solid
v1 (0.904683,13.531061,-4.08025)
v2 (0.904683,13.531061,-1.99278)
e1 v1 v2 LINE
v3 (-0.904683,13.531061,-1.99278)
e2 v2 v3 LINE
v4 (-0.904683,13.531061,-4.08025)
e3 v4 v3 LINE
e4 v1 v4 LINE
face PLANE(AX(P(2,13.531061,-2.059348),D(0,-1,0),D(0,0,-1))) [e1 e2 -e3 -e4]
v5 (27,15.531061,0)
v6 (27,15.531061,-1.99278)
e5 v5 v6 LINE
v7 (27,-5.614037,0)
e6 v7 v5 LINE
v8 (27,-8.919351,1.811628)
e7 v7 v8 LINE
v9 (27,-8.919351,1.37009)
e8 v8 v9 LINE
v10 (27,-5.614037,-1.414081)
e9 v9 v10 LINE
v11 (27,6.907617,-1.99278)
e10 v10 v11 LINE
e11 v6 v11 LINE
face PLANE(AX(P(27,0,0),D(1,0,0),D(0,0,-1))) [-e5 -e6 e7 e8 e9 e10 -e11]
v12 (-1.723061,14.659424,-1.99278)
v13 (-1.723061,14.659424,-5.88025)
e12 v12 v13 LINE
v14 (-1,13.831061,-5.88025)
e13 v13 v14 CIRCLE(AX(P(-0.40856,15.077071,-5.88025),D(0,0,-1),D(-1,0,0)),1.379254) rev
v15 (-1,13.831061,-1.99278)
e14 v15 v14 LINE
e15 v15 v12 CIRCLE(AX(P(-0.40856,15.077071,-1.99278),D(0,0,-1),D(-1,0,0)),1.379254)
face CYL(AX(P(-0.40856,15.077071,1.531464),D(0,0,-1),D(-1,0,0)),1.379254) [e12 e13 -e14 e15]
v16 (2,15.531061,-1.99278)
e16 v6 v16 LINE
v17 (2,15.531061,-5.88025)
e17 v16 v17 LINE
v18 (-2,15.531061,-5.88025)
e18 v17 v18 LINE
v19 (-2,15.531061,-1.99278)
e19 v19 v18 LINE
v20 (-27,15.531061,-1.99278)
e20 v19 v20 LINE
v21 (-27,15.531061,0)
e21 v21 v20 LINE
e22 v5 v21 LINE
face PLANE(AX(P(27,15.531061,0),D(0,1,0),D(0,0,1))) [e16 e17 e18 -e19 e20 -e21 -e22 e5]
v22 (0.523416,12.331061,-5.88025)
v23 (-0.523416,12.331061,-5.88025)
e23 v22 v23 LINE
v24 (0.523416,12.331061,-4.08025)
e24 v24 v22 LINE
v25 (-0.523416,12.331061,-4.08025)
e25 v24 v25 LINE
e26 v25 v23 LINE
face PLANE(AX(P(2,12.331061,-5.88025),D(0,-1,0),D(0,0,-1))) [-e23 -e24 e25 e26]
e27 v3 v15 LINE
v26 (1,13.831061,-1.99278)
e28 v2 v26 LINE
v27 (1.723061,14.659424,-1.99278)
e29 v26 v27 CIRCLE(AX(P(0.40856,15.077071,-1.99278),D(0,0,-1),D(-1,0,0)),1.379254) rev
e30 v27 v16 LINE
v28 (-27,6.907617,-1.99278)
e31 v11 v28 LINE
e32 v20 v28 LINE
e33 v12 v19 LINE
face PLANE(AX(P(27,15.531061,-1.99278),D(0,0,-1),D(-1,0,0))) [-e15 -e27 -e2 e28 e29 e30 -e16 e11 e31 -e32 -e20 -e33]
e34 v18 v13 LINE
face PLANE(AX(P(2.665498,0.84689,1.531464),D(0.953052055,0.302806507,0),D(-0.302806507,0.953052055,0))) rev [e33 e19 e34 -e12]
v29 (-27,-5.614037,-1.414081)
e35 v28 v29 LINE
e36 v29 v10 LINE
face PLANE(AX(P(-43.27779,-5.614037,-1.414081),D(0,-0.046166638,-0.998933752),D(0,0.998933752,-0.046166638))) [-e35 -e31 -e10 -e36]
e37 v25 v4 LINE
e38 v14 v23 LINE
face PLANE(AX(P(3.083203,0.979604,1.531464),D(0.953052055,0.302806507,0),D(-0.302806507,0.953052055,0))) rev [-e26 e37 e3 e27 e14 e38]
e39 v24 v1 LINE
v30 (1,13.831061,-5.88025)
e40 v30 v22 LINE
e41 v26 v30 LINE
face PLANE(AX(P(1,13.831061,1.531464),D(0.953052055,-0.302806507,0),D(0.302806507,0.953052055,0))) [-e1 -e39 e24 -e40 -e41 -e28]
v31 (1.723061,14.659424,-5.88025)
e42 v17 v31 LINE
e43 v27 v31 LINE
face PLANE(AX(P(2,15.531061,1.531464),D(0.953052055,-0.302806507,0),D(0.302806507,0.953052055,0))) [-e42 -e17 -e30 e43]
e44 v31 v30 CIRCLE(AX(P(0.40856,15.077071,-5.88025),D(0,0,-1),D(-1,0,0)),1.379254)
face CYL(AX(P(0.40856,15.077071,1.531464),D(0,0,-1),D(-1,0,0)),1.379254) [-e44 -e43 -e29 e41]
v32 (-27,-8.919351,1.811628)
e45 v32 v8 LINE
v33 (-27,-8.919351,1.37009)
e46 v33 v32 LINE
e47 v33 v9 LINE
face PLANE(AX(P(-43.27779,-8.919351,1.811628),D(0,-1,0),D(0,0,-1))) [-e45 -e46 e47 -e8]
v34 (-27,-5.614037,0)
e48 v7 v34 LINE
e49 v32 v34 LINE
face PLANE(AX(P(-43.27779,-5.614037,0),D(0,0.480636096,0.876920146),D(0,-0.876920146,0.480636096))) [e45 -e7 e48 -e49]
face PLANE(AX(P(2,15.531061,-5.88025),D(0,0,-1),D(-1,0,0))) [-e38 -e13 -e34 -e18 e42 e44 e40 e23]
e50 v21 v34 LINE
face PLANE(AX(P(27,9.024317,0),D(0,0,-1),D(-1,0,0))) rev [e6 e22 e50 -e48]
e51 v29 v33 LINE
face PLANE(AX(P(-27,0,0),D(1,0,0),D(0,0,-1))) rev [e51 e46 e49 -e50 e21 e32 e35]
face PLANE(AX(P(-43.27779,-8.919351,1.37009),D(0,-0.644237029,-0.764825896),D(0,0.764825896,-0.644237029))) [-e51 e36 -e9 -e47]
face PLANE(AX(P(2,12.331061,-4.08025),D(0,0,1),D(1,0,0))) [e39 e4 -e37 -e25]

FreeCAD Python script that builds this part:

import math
import FreeCAD as App
import Part
import Sketcher

V = App.Vector
Q = App.Units.Quantity

doc = App.newDocument("Part")
body = doc.addObject("PartDesign::Body", "Body")

# Sketch on YZ plane
sketch1 = body.newObject("Sketcher::SketchObject", "Sketch")
sketch1.AttachmentSupport = (doc.getObject("YZ_Plane"), [""])
sketch1.MapMode = "FlatFace"
sketch1.addGeometry([
    Part.LineSegment(V(-5.23, -6.5, 0), V(3.4, -6.5, 0)),  # 0
    Part.LineSegment(V(3.4, -6.5, 0), V(5.93, -2.49, 0)),  # 1
    Part.LineSegment(V(5.93, -2.49, 0), V(6.91, -1.99, 0)),  # 2
    Part.LineSegment(V(6.91, -1.99, 0), V(15.53, -1.99, 0)),  # 3
    Part.LineSegment(V(15.53, -1.99, 0), V(15.53, 0, 0)),  # 4
    Part.LineSegment(V(15.53, 0, 0), V(5.53, 0, 0)),  # 5
    Part.LineSegment(V(5.53, 0, 0), V(5.53, -1.08, 0)),  # 6
    Part.LineSegment(V(5.53, -1.08, 0), V(3.74, -2.13, 0)),  # 7
    Part.LineSegment(V(3.74, -2.13, 0), V(3.32, -2.13, 0)),  # 8
    Part.LineSegment(V(3.32, -2.13, 0), V(3.32, -3.85, 0)),  # 9
    Part.LineSegment(V(3.32, -3.85, 0), V(-5.23, -3.85, 0)),  # 10
    Part.LineSegment(V(-5.23, -3.85, 0), V(-5.23, -6.5, 0)),  # 11
], False)
sketch1.addConstraint([
    Sketcher.Constraint("Coincident", 0, 2, 1, 1),
    Sketcher.Constraint("Coincident", 1, 2, 2, 1),
    Sketcher.Constraint("Coincident", 2, 2, 3, 1),
    Sketcher.Constraint("Coincident", 3, 2, 4, 1),
    Sketcher.Constraint("Coincident", 4, 2, 5, 1),
    Sketcher.Constraint("Coincident", 5, 2, 6, 1),
    Sketcher.Constraint("Coincident", 6, 2, 7, 1),
    Sketcher.Constraint("Coincident", 7, 2, 8, 1),
    Sketcher.Constraint("Coincident", 8, 2, 9, 1),
    Sketcher.Constraint("Coincident", 9, 2, 10, 1),
    Sketcher.Constraint("Coincident", 10, 2, 11, 1),
    Sketcher.Constraint("Coincident", 11, 2, 0, 1),
    Sketcher.Constraint("Horizontal", 0),
    Sketcher.Constraint("Horizontal", 3),
    Sketcher.Constraint("Vertical", 4),
    Sketcher.Constraint("Horizontal", 5),
    Sketcher.Constraint("Vertical", 6),
    Sketcher.Constraint("Horizontal", 8),
    Sketcher.Constraint("Vertical", 9),
    Sketcher.Constraint("Horizontal", 10),
    Sketcher.Constraint("Vertical", 11),
    Sketcher.Constraint("PointOnObject", 4, 2, -1),
    Sketcher.Constraint("DistanceX", 5, 2, 5, 1, Q("10 mm")),
    Sketcher.Constraint("DistanceY", 9, 2, -1, 1, Q("3.852002 mm")),
    Sketcher.Constraint("DistanceY", 4, 1, 4, 2, Q("1.99278 mm")),
    Sketcher.Constraint("DistanceY", 9, 2, 9, 1, Q("1.724942 mm")),
    Sketcher.Constraint("DistanceY", 11, 2, 11, 1, Q("2.644388 mm")),
    Sketcher.Constraint("DistanceX", 0, 2, 1, 2, Q("2.5257 mm")),
    Sketcher.Constraint("Distance", 2, Q("1.10073 mm")),
    Sketcher.Constraint("Distance", 7, Q("2.07246 mm")),
    Sketcher.Constraint("DistanceX", 0, 1, 0, 2, Q("8.635816 mm")),
    Sketcher.Constraint("DistanceX", 3, 1, 3, 2, Q("8.623444 mm")),
    Sketcher.Constraint("DistanceX", 8, 2, 8, 1, Q("0.428863 mm")),
    Sketcher.Constraint("DistanceX", 10, 2, 10, 1, Q("8.550924 mm")),
    Sketcher.Constraint("DistanceY", 6, 2, 6, 1, Q("1.075984 mm")),
    Sketcher.Constraint("DistanceX", -1, 1, 0, 2, Q("3.400941 mm")),
])
pad1 = body.newObject("PartDesign::Pad", "Pad")
pad1.Profile = sketch1
pad1.Length = 54
pad1.Midplane = True

# Sketch on XY plane
sketch2 = body.newObject("Sketcher::SketchObject", "Sketch001")
sketch2.AttachmentSupport = (doc.getObject("XY_Plane"), [""])
sketch2.MapMode = "FlatFace"
sketch2.AttachmentOffset = App.Placement(V(0, 0, -6.49639), App.Rotation())
sketch2.addGeometry([
    Part.LineSegment(V(4.5, -1.7, 0), V(4.5, -5.7, 0)),
    Part.LineSegment(V(4.5, -5.7, 0), V(-4.5, -5.7, 0)),
    Part.LineSegment(V(-4.5, -5.7, 0), V(-4.5, -1.7, 0)),
    Part.LineSegment(V(-4.5, -1.7, 0), V(4.5, -1.7, 0)),
], False)
sketch2.addConstraint([
    Sketcher.Constraint("Coincident", 0, 2, 1, 1),
    Sketcher.Constraint("Coincident", 1, 2, 2, 1),
    Sketcher.Constraint("Coincident", 2, 2, 3, 1),
    Sketcher.Constraint("Coincident", 3, 2, 0, 1),
    Sketcher.Constraint("Vertical", 0),
    Sketcher.Constraint("Horizontal", 1),
    Sketcher.Constraint("Vertical", 2),
    Sketcher.Constraint("Horizontal", 3),
    Sketcher.Constraint("DistanceX", 1, 2, 1, 1, Q("9 mm")),
    Sketcher.Constraint("DistanceY", 0, 2, 0, 1, Q("4 mm")),
    Sketcher.Constraint("DistanceX", -1, 1, 0, 2, Q("4.5 mm")),
    Sketcher.Constraint("DistanceY", 0, 2, -1, 1, Q("5.734875 mm")),
])
pocket1 = body.newObject("PartDesign::Pocket", "Pocket")
pocket1.Profile = sketch2
pocket1.Length = 4
pocket1.Reversed = True

# Sketch on XY plane
sketch3 = body.newObject("Sketcher::SketchObject", "Sketch002")
sketch3.AttachmentSupport = (doc.getObject("XY_Plane"), [""])
sketch3.MapMode = "FlatFace"
sketch3.AttachmentOffset = App.Placement(V(0, 0, -6.49639), App.Rotation())
sketch3.addGeometry([
    Part.LineSegment(V(4.5, 1.3, 0), V(4.5, -1.7, 0)),
    Part.LineSegment(V(4.5, -1.7, 0), V(-4.5, -1.7, 0)),
    Part.LineSegment(V(-4.5, -1.7, 0), V(-4.5, 1.3, 0)),
    Part.LineSegment(V(-4.5, 1.3, 0), V(4.5, 1.3, 0)),
], False)
sketch3.addConstraint([
    Sketcher.Constraint("Coincident", 0, 2, 1, 1),
    Sketcher.Constraint("Coincident", 1, 2, 2, 1),
    Sketcher.Constraint("Coincident", 2, 2, 3, 1),
    Sketcher.Constraint("Coincident", 3, 2, 0, 1),
    Sketcher.Constraint("Vertical", 0),
    Sketcher.Constraint("Horizontal", 1),
    Sketcher.Constraint("Vertical", 2),
    Sketcher.Constraint("Horizontal", 3),
    Sketcher.Constraint("DistanceX", 1, 2, 1, 1, Q("9 mm")),
    Sketcher.Constraint("DistanceX", -1, 1, 0, 2, Q("4.5 mm")),
    Sketcher.Constraint("DistanceY", 0, 2, 0, 1, Q("3.038101 mm")),
    Sketcher.Constraint("DistanceY", 0, 2, -1, 1, Q("1.734875 mm")),
])
pad2 = body.newObject("PartDesign::Pad", "Pad001")
pad2.Profile = sketch3
pad2.Length = 3
pad2.Reversed = True

# Sketch on XZ plane
sketch4 = body.newObject("Sketcher::SketchObject", "Sketch003")
sketch4.AttachmentSupport = (doc.getObject("XZ_Plane"), [""])
sketch4.MapMode = "FlatFace"
sketch4.AttachmentOffset = App.Placement(V(0, 0, 1.734875), App.Rotation())
sketch4.addGeometry(Part.Circle(V(0, -6.1, 0), V(0, 0, 1), 1.5), False)
sketch4.addConstraint([
    Sketcher.Constraint("PointOnObject", 0, 3, -2),
    Sketcher.Constraint("Diameter", 0, Q("3 mm")),
    Sketcher.Constraint("DistanceY", 0, 3, -1, 1, Q("6.102002 mm")),
])
pocket2 = body.newObject("PartDesign::Pocket", "Pocket001")
pocket2.Profile = sketch4
pocket2.Length = 9

# Sketch on YZ plane
sketch5 = body.newObject("Sketcher::SketchObject", "Sketch004")
sketch5.AttachmentSupport = (doc.getObject("YZ_Plane"), [""])
sketch5.MapMode = "FlatFace"
sketch5.addGeometry([
    Part.LineSegment(V(15.5, -5.9, 0), V(15.5, -1.9, 0)),  # 0
    Part.LineSegment(V(15.5, -1.9, 0), V(13.5, -1.9, 0)),  # 1
    Part.LineSegment(V(13.5, -1.9, 0), V(13.5, -4.1, 0)),  # 2
    Part.LineSegment(V(13.5, -4.1, 0), V(12.3, -4.1, 0)),  # 3
    Part.LineSegment(V(12.3, -4.1, 0), V(12.3, -5.9, 0)),  # 4
    Part.LineSegment(V(12.3, -5.9, 0), V(15.5, -5.9, 0)),  # 5
], False)
sketch5.addConstraint([
    Sketcher.Constraint("Coincident", 0, 2, 1, 1),
    Sketcher.Constraint("Coincident", 1, 2, 2, 1),
    Sketcher.Constraint("Coincident", 2, 2, 3, 1),
    Sketcher.Constraint("Coincident", 3, 2, 4, 1),
    Sketcher.Constraint("Coincident", 4, 2, 5, 1),
    Sketcher.Constraint("Coincident", 5, 2, 0, 1),
    Sketcher.Constraint("Vertical", 0),
    Sketcher.Constraint("Horizontal", 1),
    Sketcher.Constraint("Vertical", 2),
    Sketcher.Constraint("Horizontal", 3),
    Sketcher.Constraint("Vertical", 4),
    Sketcher.Constraint("Horizontal", 5),
    Sketcher.Constraint("DistanceX", 1, 2, 1, 1, Q("2 mm")),
    Sketcher.Constraint("DistanceY", 0, 1, 0, 2, Q("4 mm")),
    Sketcher.Constraint("DistanceX", 3, 2, 3, 1, Q("1.2 mm")),
    Sketcher.Constraint("DistanceY", 2, 2, 2, 1, Q("2.2 mm")),
    Sketcher.Constraint("DistanceX", -1, 1, 0, 2, Q("15.531061 mm")),
    Sketcher.Constraint("DistanceY", 0, 2, -1, 1, Q("1.88025 mm")),
])
pad3 = body.newObject("PartDesign::Pad", "Pad002")
pad3.Profile = sketch5
pad3.Length = 4
pad3.Midplane = True

# Sketch on XY plane
sketch6 = body.newObject("Sketcher::SketchObject", "Sketch005")
sketch6.AttachmentSupport = (doc.getObject("XY_Plane"), [""])
sketch6.MapMode = "FlatFace"
sketch6.AttachmentOffset = App.Placement(V(0, 0, -5.88025), App.Rotation())
sketch6.addGeometry([
    Part.LineSegment(V(-1, 13.8, 0), V(-0.5, 12.3, 0)),  # 0
    Part.LineSegment(V(-0.5, 12.3, 0), V(-2, 12.3, 0)),  # 1
    Part.LineSegment(V(-2, 12.3, 0), V(-2, 15.5, 0)),  # 2
    Part.LineSegment(V(-2, 15.5, 0), V(-1.7, 14.7, 0)),  # 3
    Part.ArcOfCircle(Part.Circle(V(-0.4, 15.1, 0), V(0, 0, 1), 1.4), math.radians(-162), math.radians(-115)),  # 4
    Part.ArcOfCircle(Part.Circle(V(0.4, 15.1, 0), V(0, 0, 1), 1.4), math.radians(-65), math.radians(-18)),  # 5
    Part.LineSegment(V(1.7, 14.7, 0), V(2, 15.5, 0)),  # 6
    Part.LineSegment(V(2, 15.5, 0), V(2, 12.3, 0)),  # 7
    Part.LineSegment(V(2, 12.3, 0), V(0.5, 12.3, 0)),  # 8
    Part.LineSegment(V(0.5, 12.3, 0), V(1, 13.8, 0)),  # 9
], False)
sketch6.addConstraint([
    Sketcher.Constraint("Coincident", 0, 2, 1, 1),
    Sketcher.Constraint("Coincident", 1, 2, 2, 1),
    Sketcher.Constraint("Coincident", 2, 2, 3, 1),
    Sketcher.Constraint("Tangent", 3, 2, 4, 1),
    Sketcher.Constraint("Coincident", 4, 2, 0, 1),
    Sketcher.Constraint("Tangent", 5, 2, 6, 1),
    Sketcher.Constraint("Coincident", 6, 2, 7, 1),
    Sketcher.Constraint("Coincident", 7, 2, 8, 1),
    Sketcher.Constraint("Coincident", 8, 2, 9, 1),
    Sketcher.Constraint("Coincident", 9, 2, 5, 1),
    Sketcher.Constraint("Horizontal", 1),
    Sketcher.Constraint("Vertical", 2),
    Sketcher.Constraint("Vertical", 7),
    Sketcher.Constraint("Horizontal", 8),
    Sketcher.Constraint("Equal", 4, 5),
    Sketcher.Constraint("Symmetric", 4, 3, 5, 3, -2),
    Sketcher.Constraint("Symmetric", 2, 2, 6, 2, -2),
    Sketcher.Constraint("Symmetric", 0, 2, 8, 2, -2),
    Sketcher.Constraint("Parallel", 0, 3),
    Sketcher.Constraint("Parallel", 6, 9),
    Sketcher.Constraint("DistanceY", 2, 1, 2, 2, Q("3.2 mm")),
    Sketcher.Constraint("DistanceX", 1, 2, -1, 1, Q("2 mm")),
    Sketcher.Constraint("DistanceX", 4, 2, -1, 1, Q("1 mm")),
    Sketcher.Constraint("DistanceY", 0, 2, 4, 2, Q("1.5 mm")),
    Sketcher.Constraint("Radius", 4, Q("1.379254 mm")),
    Sketcher.Constraint("DistanceX", 3, 2, 4, 3, Q("1.314501 mm")),
    Sketcher.Constraint("DistanceY", -1, 1, 4, 3, Q("15.077071 mm")),
])
pocket3 = body.newObject("PartDesign::Pocket", "Pocket002")
pocket3.Profile = sketch6
pocket3.Length = 3.887469
pocket3.Reversed = True

# Sketch on YZ plane
sketch7 = body.newObject("Sketcher::SketchObject", "Sketch006")
sketch7.AttachmentSupport = (doc.getObject("YZ_Plane"), [""])
sketch7.MapMode = "FlatFace"
sketch7.AttachmentOffset = App.Placement(V(0, 0, -27), App.Rotation())
sketch7.addGeometry([
    Part.LineSegment(V(5, -12, 0), V(-8, -12, 0)),
    Part.LineSegment(V(-8, -12, 0), V(-8, -4, 0)),
    Part.LineSegment(V(-8, -4, 0), V(5, -4, 0)),
    Part.LineSegment(V(5, -4, 0), V(5, -12, 0)),
], False)
sketch7.addConstraint([
    Sketcher.Constraint("Coincident", 0, 2, 1, 1),
    Sketcher.Constraint("Coincident", 1, 2, 2, 1),
    Sketcher.Constraint("Coincident", 2, 2, 3, 1),
    Sketcher.Constraint("Coincident", 3, 2, 0, 1),
    Sketcher.Constraint("Horizontal", 0),
    Sketcher.Constraint("Vertical", 1),
    Sketcher.Constraint("Horizontal", 2),
    Sketcher.Constraint("Vertical", 3),
    Sketcher.Constraint("DistanceX", 0, 2, 0, 1, Q("13.248031 mm")),
    Sketcher.Constraint("DistanceY", 1, 1, 1, 2, Q("8.610608 mm")),
    Sketcher.Constraint("DistanceY", 0, 2, -1, 1, Q("12.402951 mm")),
    Sketcher.Constraint("DistanceX", 0, 2, -1, 1, Q("7.997957 mm")),
])
pocket4 = body.newObject("PartDesign::Pocket", "Pocket003")
pocket4.Profile = sketch7
pocket4.Length = 54
pocket4.Reversed = True

# Sketch on YZ plane
sketch8 = body.newObject("Sketcher::SketchObject", "Sketch007")
sketch8.AttachmentSupport = (doc.getObject("YZ_Plane"), [""])
sketch8.MapMode = "FlatFace"
sketch8.AttachmentOffset = App.Placement(V(0, 0, -27), App.Rotation())
sketch8.addGeometry([
    Part.LineSegment(V(3.3, -2.1, 0), V(3.3, -3.8, 0)),  # 0
    Part.LineSegment(V(3.3, -3.8, 0), V(-5.6, -3.8, 0)),  # 1
    Part.LineSegment(V(-5.6, -3.8, 0), V(-5.6, -2.2, 0)),  # 2
    Part.LineSegment(V(-5.6, -2.2, 0), V(0.4, -2.2, 0)),  # 3
    Part.LineSegment(V(0.4, -2.2, 0), V(3.3, -2.1, 0)),  # 4
], False)
sketch8.addConstraint([
    Sketcher.Constraint("Coincident", 0, 2, 1, 1),
    Sketcher.Constraint("Coincident", 1, 2, 2, 1),
    Sketcher.Constraint("Coincident", 2, 2, 3, 1),
    Sketcher.Constraint("Coincident", 3, 2, 4, 1),
    Sketcher.Constraint("Coincident", 4, 2, 0, 1),
    Sketcher.Constraint("Vertical", 0),
    Sketcher.Constraint("Horizontal", 1),
    Sketcher.Constraint("Vertical", 2),
    Sketcher.Constraint("Horizontal", 3),
    Sketcher.Constraint("DistanceX", 3, 1, 3, 2, Q("6.005921 mm")),
    Sketcher.Constraint("DistanceY", 3, 2, 4, 2, Q("0.088101 mm")),
    Sketcher.Constraint("Distance", 4, Q("2.925492 mm")),
    Sketcher.Constraint("DistanceY", 0, 2, 0, 1, Q("1.665283 mm")),
    Sketcher.Constraint("DistanceX", -1, 1, 0, 2, Q("3.316049 mm")),
    Sketcher.Constraint("DistanceY", 2, 2, -1, 1, Q("2.215161 mm")),
])
pad4 = body.newObject("PartDesign::Pad", "Pad003")
pad4.Profile = sketch8
pad4.Length = 54

# Sketch on XY plane
sketch9 = body.newObject("Sketcher::SketchObject", "Sketch008")
sketch9.AttachmentSupport = (doc.getObject("XY_Plane"), [""])
sketch9.MapMode = "FlatFace"
sketch9.AttachmentOffset = App.Placement(V(0, 0, -2.215161), App.Rotation())
sketch9.addGeometry([
    Part.LineSegment(V(-27, 0, 0), V(-27, -6, 0)),  # 0
    Part.LineSegment(V(-27, -6, 0), V(-3, -6, 0)),  # 1
    Part.LineSegment(V(-3, -6, 0), V(-3, 0, 0)),  # 2
    Part.LineSegment(V(-3, 0, 0), V(-27, 0, 0)),  # 3
    Part.LineSegment(V(3, 0, 0), V(3, -6, 0)),  # 4
    Part.LineSegment(V(3, -6, 0), V(27, -6, 0)),  # 5
    Part.LineSegment(V(27, -6, 0), V(27, 0, 0)),  # 6
    Part.LineSegment(V(27, 0, 0), V(3, 0, 0)),  # 7
], False)
sketch9.addConstraint([
    Sketcher.Constraint("Coincident", 0, 2, 1, 1),
    Sketcher.Constraint("Coincident", 1, 2, 2, 1),
    Sketcher.Constraint("Coincident", 2, 2, 3, 1),
    Sketcher.Constraint("Coincident", 3, 2, 0, 1),
    Sketcher.Constraint("Coincident", 4, 2, 5, 1),
    Sketcher.Constraint("Coincident", 5, 2, 6, 1),
    Sketcher.Constraint("Coincident", 6, 2, 7, 1),
    Sketcher.Constraint("Coincident", 7, 2, 4, 1),
    Sketcher.Constraint("Vertical", 0),
    Sketcher.Constraint("Horizontal", 1),
    Sketcher.Constraint("Vertical", 2),
    Sketcher.Constraint("Horizontal", 3),
    Sketcher.Constraint("Vertical", 4),
    Sketcher.Constraint("Horizontal", 5),
    Sketcher.Constraint("Vertical", 6),
    Sketcher.Constraint("Horizontal", 7),
    Sketcher.Constraint("Symmetric", 1, 2, 4, 2, -2),
    Sketcher.Constraint("Equal", 3, 5),
    Sketcher.Constraint("DistanceX", 1, 1, 1, 2, Q("24 mm")),
    Sketcher.Constraint("DistanceX", 0, 2, -1, 1, Q("27 mm")),
    Sketcher.Constraint("DistanceY", 0, 2, 0, 1, Q("6.005921 mm")),
    Sketcher.Constraint("DistanceY", 4, 2, 4, 1, Q("6.032487 mm")),
    Sketcher.Constraint("DistanceY", -1, 1, 6, 2, Q("0.41845 mm")),
])
pad5 = body.newObject("PartDesign::Pad", "Pad004")
pad5.Profile = sketch9
pad5.Length = 2.215161

# Sketch on YZ plane
sketch10 = body.newObject("Sketcher::SketchObject", "Sketch009")
sketch10.AttachmentSupport = (doc.getObject("YZ_Plane"), [""])
sketch10.MapMode = "FlatFace"
sketch10.AttachmentOffset = App.Placement(V(0, 0, 27), App.Rotation())
sketch10.addGeometry([
    Part.LineSegment(V(-5.61, 0, 0), V(-8.92, 1.81, 0)),  # 0
    Part.LineSegment(V(-8.92, 1.81, 0), V(-8.92, 1.37, 0)),  # 1
    Part.LineSegment(V(-8.92, 1.37, 0), V(-5.61, -1.41, 0)),  # 2
    Part.LineSegment(V(-5.61, -1.41, 0), V(6.91, -1.99, 0)),  # 3
    Part.LineSegment(V(6.91, -1.99, 0), V(6.91, 0, 0)),  # 4
    Part.LineSegment(V(6.91, 0, 0), V(-5.61, 0, 0)),  # 5
], False)
sketch10.addConstraint([
    Sketcher.Constraint("Coincident", 0, 2, 1, 1),
    Sketcher.Constraint("Coincident", 1, 2, 2, 1),
    Sketcher.Constraint("Coincident", 2, 2, 3, 1),
    Sketcher.Constraint("Coincident", 3, 2, 4, 1),
    Sketcher.Constraint("Coincident", 4, 2, 5, 1),
    Sketcher.Constraint("Coincident", 5, 2, 0, 1),
    Sketcher.Constraint("Vertical", 1),
    Sketcher.Constraint("Vertical", 4),
    Sketcher.Constraint("Horizontal", 5),
    Sketcher.Constraint("PointOnObject", 4, 2, -1),
    Sketcher.Constraint("Vertical", 2, 2, 5, 2),
    Sketcher.Constraint("DistanceY", 1, 2, 1, 1, Q("0.441538 mm")),
    Sketcher.Constraint("DistanceY", 4, 1, 4, 2, Q("1.99278 mm")),
    Sketcher.Constraint("DistanceY", 3, 2, 2, 2, Q("0.5787 mm")),
    Sketcher.Constraint("Distance", 0, Q("3.769231 mm")),
    Sketcher.Constraint("Distance", 3, Q("12.535019 mm")),
    Sketcher.Constraint("DistanceX", 0, 2, -1, 1, Q("8.919351 mm")),
    Sketcher.Constraint("DistanceY", -1, 1, 0, 2, Q("1.811628 mm")),
])
pad6 = body.newObject("PartDesign::Pad", "Pad005")
pad6.Profile = sketch10
pad6.Length = 54
pad6.Reversed = True

# Sketch on YZ plane
sketch11 = body.newObject("Sketcher::SketchObject", "Sketch010")
sketch11.AttachmentSupport = (doc.getObject("YZ_Plane"), [""])
sketch11.MapMode = "FlatFace"
sketch11.AttachmentOffset = App.Placement(V(0, 0, 27), App.Rotation())
sketch11.addGeometry([
    Part.LineSegment(V(6.9, -2, 0), V(-5.6, -1.4, 0)),
    Part.LineSegment(V(-5.6, -1.4, 0), V(-5.6, -3.8, 0)),
    Part.LineSegment(V(-5.6, -3.8, 0), V(5.1, -3.8, 0)),
    Part.LineSegment(V(5.1, -3.8, 0), V(6.9, -2, 0)),
], False)
sketch11.addConstraint([
    Sketcher.Constraint("Coincident", 0, 2, 1, 1),
    Sketcher.Constraint("Coincident", 1, 2, 2, 1),
    Sketcher.Constraint("Coincident", 2, 2, 3, 1),
    Sketcher.Constraint("Coincident", 3, 2, 0, 1),
    Sketcher.Constraint("Vertical", 1),
    Sketcher.Constraint("Horizontal", 2),
    Sketcher.Constraint("DistanceX", 2, 1, 2, 2, Q("10.72054 mm")),
    Sketcher.Constraint("DistanceY", 3, 2, 0, 2, Q("0.5787 mm")),
    Sketcher.Constraint("Distance", 0, Q("12.535019 mm")),
    Sketcher.Constraint("DistanceY", 1, 2, 1, 1, Q("2.378263 mm")),
    Sketcher.Constraint("DistanceY", 0, 2, -1, 1, Q("1.414081 mm")),
    Sketcher.Constraint("DistanceX", 0, 2, -1, 1, Q("5.614037 mm")),
])
pocket5 = body.newObject("PartDesign::Pocket", "Pocket004")
pocket5.Profile = sketch11
pocket5.Length = 54

doc.recompute()
